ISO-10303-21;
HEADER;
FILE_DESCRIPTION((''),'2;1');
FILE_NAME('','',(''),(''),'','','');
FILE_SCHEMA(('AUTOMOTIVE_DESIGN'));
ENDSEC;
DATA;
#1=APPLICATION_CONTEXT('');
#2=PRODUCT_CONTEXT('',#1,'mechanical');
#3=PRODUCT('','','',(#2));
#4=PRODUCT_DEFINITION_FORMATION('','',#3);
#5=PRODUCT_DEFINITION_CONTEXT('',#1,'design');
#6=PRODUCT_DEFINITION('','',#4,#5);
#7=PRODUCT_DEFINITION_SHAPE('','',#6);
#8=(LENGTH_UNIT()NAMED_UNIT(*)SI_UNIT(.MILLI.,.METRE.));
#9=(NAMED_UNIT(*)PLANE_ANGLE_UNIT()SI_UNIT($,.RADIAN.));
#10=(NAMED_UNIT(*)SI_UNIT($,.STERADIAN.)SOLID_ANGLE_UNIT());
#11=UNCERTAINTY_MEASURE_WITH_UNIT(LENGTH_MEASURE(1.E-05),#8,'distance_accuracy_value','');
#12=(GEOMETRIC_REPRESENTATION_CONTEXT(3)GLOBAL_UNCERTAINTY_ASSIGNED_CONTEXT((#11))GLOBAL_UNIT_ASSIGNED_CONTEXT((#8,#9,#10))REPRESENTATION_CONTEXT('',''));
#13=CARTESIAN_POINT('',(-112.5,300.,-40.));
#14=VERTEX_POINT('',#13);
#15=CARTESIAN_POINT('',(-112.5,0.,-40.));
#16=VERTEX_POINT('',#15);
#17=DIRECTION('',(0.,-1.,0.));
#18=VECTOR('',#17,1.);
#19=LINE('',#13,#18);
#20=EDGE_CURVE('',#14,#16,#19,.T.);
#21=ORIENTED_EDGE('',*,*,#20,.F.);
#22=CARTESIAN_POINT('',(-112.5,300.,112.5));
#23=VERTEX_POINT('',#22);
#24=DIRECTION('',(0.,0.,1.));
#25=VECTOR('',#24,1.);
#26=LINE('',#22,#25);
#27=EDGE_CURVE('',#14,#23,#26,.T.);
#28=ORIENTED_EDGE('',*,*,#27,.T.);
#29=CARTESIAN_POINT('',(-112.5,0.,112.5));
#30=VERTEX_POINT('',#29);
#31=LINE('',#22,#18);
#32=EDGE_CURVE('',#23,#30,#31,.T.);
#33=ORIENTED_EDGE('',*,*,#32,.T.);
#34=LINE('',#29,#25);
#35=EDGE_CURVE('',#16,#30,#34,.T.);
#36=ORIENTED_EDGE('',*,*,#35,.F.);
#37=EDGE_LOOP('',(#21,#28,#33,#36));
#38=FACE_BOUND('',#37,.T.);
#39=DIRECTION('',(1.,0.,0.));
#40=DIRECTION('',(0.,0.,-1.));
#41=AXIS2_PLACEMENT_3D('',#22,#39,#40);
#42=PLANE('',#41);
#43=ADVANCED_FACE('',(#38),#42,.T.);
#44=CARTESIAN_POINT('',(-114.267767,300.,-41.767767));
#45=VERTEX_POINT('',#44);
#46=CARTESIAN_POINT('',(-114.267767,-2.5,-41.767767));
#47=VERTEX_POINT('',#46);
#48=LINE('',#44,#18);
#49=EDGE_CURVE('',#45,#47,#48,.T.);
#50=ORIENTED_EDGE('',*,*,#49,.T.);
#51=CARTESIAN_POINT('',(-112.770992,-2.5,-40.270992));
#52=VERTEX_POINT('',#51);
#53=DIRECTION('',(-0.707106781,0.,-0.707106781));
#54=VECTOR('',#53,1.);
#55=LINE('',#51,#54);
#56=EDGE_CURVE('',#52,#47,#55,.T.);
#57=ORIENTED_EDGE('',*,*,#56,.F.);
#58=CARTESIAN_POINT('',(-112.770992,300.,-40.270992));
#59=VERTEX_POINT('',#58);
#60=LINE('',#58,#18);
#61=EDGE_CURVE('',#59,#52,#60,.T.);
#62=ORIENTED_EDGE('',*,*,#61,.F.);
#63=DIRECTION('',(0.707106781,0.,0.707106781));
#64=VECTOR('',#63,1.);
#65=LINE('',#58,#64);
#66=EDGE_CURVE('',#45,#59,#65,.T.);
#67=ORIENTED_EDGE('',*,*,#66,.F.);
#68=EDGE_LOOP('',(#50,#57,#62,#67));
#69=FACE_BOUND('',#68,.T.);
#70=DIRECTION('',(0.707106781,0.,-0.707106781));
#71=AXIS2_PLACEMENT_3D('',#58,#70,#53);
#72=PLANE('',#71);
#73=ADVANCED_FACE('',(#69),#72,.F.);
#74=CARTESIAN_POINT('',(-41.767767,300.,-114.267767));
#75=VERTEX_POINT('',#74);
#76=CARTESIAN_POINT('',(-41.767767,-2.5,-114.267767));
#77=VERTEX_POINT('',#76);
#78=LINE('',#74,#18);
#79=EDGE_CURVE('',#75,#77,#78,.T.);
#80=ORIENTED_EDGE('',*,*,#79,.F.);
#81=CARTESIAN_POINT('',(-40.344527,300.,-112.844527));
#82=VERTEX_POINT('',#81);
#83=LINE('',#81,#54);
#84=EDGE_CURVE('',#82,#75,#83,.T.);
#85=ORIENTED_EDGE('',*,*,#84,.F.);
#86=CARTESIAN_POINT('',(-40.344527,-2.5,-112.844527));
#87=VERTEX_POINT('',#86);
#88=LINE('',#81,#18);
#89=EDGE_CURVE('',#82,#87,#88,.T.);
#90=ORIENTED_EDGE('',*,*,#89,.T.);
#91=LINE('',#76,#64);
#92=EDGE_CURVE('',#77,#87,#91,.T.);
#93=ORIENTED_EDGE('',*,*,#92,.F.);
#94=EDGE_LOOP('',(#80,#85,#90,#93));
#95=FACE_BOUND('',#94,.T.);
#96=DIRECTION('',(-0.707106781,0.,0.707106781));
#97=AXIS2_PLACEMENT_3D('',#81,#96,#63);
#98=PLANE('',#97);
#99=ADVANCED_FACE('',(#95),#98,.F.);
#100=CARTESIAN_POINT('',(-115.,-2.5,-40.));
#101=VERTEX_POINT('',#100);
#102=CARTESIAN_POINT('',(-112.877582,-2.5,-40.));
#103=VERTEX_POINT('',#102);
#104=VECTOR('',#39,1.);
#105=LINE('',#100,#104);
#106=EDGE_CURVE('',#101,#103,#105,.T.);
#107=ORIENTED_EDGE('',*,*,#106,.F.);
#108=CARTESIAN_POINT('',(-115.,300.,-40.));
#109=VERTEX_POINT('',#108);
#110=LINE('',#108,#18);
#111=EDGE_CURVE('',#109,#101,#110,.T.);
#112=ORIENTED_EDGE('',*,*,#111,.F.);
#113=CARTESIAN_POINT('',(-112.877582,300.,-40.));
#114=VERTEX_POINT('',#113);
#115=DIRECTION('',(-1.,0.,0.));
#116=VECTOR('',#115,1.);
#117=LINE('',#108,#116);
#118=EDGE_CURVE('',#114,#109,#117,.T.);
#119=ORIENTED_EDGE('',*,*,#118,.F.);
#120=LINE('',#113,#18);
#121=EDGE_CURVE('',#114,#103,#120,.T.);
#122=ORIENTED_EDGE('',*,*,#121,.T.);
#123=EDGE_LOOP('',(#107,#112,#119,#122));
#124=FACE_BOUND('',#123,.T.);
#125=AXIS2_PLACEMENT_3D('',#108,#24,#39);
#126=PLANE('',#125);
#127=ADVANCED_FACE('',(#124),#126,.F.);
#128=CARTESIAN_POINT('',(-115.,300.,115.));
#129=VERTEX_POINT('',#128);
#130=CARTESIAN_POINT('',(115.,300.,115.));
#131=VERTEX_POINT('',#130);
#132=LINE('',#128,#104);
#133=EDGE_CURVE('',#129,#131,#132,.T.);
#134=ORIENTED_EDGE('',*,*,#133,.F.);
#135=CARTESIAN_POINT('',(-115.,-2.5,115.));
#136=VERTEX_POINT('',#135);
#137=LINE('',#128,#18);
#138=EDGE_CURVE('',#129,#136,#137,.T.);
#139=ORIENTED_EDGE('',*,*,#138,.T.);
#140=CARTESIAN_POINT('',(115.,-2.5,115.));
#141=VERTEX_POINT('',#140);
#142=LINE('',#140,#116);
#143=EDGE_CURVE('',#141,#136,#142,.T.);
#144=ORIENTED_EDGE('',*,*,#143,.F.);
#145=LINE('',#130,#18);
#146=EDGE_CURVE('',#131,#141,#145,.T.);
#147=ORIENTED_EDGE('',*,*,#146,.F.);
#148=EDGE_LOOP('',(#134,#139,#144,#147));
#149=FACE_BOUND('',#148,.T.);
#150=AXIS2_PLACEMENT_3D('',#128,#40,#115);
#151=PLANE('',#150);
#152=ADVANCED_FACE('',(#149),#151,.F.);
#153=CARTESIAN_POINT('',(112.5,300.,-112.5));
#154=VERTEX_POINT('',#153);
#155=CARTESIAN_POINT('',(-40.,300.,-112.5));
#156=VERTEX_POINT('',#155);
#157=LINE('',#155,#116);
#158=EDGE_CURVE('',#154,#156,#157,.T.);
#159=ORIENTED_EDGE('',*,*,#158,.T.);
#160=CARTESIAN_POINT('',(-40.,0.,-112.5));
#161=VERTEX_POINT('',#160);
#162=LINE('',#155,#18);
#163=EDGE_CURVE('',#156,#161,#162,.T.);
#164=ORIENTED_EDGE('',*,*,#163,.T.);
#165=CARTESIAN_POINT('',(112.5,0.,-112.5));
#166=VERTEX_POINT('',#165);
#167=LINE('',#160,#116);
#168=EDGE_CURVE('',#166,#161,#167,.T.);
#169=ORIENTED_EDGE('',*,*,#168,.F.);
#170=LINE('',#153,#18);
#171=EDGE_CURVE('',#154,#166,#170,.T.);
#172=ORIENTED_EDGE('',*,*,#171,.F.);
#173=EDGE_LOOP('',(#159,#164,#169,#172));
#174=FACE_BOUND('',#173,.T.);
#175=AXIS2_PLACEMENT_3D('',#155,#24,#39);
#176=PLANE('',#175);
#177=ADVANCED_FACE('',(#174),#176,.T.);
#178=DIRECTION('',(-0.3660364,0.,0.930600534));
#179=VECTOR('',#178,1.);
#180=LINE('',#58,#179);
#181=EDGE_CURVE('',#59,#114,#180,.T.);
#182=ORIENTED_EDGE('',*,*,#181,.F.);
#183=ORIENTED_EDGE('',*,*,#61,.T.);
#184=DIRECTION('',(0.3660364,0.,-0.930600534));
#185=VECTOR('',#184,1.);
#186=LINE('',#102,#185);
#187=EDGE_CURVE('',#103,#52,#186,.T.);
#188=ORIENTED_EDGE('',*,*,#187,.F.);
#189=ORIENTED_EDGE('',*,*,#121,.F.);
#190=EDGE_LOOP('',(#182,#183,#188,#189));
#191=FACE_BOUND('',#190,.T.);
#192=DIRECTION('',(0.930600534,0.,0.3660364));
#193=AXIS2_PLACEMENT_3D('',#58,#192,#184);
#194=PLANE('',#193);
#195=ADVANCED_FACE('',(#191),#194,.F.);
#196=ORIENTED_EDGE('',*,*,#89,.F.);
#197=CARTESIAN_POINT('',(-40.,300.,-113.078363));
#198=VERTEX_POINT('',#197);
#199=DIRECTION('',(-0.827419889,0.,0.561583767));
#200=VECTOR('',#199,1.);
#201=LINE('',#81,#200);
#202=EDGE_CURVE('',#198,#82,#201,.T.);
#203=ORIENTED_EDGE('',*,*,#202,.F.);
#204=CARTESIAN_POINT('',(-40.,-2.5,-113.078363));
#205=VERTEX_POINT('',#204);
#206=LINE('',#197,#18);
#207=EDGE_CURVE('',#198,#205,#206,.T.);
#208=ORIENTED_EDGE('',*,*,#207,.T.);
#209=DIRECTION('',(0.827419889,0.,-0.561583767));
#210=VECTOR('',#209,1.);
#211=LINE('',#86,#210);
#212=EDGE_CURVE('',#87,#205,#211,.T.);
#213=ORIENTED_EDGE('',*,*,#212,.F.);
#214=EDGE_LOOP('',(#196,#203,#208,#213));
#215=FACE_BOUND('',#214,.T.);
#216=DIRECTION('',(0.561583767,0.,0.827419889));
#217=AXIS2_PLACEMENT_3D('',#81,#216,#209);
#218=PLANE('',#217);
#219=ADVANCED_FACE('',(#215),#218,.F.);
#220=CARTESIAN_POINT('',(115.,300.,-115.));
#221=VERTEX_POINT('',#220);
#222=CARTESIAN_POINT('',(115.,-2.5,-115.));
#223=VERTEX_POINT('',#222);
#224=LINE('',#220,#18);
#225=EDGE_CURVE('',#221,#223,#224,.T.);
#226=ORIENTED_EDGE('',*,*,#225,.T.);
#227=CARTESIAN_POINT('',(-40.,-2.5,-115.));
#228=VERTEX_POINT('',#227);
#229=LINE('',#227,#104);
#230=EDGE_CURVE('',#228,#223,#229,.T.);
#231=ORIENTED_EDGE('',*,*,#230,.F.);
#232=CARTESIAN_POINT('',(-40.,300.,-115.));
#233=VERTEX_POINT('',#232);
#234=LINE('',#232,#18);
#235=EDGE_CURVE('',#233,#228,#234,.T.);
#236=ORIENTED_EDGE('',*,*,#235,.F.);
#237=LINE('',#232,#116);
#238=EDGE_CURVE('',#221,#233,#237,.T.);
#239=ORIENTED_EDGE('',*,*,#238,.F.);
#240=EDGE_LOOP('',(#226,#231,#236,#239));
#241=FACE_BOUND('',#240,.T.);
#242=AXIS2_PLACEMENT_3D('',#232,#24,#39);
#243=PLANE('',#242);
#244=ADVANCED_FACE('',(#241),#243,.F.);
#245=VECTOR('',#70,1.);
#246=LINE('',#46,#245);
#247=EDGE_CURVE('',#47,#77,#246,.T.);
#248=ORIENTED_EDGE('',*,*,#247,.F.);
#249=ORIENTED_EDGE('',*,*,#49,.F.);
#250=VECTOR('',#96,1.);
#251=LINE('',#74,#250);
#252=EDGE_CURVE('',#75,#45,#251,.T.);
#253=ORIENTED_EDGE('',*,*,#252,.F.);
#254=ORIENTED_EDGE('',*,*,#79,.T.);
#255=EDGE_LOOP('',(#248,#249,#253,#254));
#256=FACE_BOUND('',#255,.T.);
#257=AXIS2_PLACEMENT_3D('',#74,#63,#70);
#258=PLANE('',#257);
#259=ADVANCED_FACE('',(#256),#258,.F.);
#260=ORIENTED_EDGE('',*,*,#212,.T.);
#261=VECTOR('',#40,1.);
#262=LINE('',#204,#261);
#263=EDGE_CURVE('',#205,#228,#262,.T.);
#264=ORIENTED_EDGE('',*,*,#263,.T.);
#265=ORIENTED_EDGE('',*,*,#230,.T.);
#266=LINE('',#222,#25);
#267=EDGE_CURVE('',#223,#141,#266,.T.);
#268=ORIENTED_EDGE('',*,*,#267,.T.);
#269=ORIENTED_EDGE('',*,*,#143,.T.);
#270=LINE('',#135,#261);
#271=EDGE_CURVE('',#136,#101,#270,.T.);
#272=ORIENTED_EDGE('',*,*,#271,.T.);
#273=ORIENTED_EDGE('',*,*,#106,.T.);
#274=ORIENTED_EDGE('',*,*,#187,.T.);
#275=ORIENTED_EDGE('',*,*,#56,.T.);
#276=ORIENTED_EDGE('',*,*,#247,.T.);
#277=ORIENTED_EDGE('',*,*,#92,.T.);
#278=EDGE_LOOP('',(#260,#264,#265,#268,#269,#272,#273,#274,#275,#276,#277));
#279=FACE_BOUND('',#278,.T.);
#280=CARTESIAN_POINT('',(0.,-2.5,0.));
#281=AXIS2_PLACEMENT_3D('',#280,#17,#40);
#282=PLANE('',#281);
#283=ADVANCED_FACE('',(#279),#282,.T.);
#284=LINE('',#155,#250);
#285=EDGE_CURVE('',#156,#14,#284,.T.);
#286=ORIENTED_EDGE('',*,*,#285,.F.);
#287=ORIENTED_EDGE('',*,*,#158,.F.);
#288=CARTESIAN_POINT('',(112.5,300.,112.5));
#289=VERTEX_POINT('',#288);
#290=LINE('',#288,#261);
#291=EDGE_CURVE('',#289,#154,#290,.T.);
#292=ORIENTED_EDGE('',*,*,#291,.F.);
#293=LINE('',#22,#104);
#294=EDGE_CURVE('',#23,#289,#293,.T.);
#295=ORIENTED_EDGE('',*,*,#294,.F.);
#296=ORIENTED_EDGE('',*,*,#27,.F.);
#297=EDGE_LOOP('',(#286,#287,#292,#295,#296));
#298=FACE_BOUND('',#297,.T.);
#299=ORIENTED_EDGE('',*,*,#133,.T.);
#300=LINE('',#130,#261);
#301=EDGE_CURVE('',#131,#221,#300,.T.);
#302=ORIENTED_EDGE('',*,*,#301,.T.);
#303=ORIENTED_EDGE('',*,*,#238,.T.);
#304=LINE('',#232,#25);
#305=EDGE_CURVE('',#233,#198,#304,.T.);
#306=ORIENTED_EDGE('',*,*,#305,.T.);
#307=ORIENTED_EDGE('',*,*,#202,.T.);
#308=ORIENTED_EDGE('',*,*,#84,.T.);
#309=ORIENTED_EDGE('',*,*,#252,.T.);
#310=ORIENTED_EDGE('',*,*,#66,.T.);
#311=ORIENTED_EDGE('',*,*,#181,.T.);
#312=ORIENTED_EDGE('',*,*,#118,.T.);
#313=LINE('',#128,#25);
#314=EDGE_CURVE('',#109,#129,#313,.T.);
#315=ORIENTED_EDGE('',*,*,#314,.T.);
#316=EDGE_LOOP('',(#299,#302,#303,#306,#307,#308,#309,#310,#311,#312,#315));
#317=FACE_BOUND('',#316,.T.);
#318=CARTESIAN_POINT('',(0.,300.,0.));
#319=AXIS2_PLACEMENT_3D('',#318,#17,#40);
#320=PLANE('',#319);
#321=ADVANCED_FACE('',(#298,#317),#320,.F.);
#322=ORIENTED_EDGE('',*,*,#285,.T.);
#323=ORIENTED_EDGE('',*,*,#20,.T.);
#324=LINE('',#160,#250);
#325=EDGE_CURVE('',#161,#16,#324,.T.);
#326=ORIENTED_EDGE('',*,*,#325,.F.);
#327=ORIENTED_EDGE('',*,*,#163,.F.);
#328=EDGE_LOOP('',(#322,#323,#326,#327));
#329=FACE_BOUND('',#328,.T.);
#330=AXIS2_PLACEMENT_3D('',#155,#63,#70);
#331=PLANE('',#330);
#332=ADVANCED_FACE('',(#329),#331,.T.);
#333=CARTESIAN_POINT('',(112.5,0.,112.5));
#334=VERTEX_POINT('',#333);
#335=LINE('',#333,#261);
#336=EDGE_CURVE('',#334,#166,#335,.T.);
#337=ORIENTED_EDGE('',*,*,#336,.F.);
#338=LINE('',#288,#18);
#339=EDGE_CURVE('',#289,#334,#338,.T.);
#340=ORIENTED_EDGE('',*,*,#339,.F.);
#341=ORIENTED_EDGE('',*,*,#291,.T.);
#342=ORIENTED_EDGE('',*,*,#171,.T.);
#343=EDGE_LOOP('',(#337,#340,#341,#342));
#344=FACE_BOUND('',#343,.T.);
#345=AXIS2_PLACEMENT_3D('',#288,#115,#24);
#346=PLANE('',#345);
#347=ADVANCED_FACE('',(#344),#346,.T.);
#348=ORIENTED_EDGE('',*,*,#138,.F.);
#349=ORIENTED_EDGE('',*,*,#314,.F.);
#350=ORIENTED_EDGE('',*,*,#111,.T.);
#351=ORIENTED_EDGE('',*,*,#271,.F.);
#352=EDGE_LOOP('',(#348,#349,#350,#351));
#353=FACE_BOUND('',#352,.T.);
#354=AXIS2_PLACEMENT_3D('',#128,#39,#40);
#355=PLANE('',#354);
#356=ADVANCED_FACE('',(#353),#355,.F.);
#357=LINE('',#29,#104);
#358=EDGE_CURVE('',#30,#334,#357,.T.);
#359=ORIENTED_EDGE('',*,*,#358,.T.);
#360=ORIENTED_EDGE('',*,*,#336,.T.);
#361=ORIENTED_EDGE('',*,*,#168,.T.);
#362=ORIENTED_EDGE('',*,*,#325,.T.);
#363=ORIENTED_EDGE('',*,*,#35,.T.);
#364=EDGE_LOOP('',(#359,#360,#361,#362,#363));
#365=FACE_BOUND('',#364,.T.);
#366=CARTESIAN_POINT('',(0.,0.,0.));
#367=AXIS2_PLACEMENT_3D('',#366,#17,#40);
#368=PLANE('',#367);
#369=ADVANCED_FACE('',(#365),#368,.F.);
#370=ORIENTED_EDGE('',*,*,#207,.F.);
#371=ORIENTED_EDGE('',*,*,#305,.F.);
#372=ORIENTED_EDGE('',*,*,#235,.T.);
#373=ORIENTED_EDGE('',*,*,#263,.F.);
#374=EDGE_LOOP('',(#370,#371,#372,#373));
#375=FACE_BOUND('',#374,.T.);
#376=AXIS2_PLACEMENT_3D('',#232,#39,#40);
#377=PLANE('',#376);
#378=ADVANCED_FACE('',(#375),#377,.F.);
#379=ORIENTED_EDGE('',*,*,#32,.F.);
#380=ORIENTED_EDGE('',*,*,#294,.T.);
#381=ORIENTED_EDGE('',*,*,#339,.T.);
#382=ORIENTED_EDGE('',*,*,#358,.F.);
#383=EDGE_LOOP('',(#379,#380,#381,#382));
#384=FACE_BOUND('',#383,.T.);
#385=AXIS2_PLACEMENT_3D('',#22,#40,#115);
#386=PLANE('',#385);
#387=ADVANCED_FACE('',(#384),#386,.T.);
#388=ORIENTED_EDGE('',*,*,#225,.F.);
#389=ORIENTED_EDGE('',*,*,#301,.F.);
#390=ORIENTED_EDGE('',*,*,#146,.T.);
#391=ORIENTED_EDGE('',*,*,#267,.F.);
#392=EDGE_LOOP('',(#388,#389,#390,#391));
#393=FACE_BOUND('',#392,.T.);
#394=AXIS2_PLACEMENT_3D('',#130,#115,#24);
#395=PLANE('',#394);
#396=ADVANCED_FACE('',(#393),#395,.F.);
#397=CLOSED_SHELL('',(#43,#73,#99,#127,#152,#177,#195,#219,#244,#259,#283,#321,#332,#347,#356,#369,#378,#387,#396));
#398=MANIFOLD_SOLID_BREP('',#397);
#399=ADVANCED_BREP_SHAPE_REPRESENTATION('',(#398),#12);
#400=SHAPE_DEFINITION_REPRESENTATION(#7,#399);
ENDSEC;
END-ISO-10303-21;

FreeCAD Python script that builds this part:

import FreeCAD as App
import Part
import Sketcher
from FreeCAD import Vector
Q = App.Units.Quantity


def add_polygon(sketch, points):
    """Adds a closed chain of lines whose ends are joined by coincident constraints."""
    first, n = sketch.GeometryCount, len(points)
    for a, b in zip(points, points[1:] + points[:1]):
        sketch.addGeometry(Part.LineSegment(App.Vector(*a, 0), App.Vector(*b, 0)), False)
    for i in range(n):
        sketch.addConstraint(Sketcher.Constraint("Coincident", first + i, 2, first + (i + 1) % n, 1))

doc = App.newDocument("Part")
body = doc.addObject("PartDesign::Body", "Body")

sketch1 = body.newObject("Sketcher::SketchObject", "Sketch")
sketch1.AttachmentSupport = (doc.getObject("XZ_Plane"), [""])
sketch1.MapMode = "FlatFace"
add_polygon(sketch1, [(-41.77, -114.27), (-114.27, -41.77), (-112.77, -40.27), (-112.88, -40), (-115, -40), (-115, 115), (115, 115), (115, -115), (-40, -115), (-40, -113.08), (-40.34, -112.84)])
add_polygon(sketch1, [(112.5, 112.5), (-112.5, 112.5), (-112.5, -40), (-40, -112.5), (112.5, -112.5)])
sketch1.addConstraint(Sketcher.Constraint("Horizontal", 3))
sketch1.addConstraint(Sketcher.Constraint("Vertical", 4))
sketch1.addConstraint(Sketcher.Constraint("Horizontal", 5))
sketch1.addConstraint(Sketcher.Constraint("Vertical", 6))
sketch1.addConstraint(Sketcher.Constraint("Horizontal", 7))
sketch1.addConstraint(Sketcher.Constraint("Vertical", 8))
sketch1.addConstraint(Sketcher.Constraint("Horizontal", 11))
sketch1.addConstraint(Sketcher.Constraint("Vertical", 12))
sketch1.addConstraint(Sketcher.Constraint("Horizontal", 14))
sketch1.addConstraint(Sketcher.Constraint("Vertical", 15))
sketch1.addConstraint(Sketcher.Constraint("Symmetric", 4, 2, 6, 2, -1, 1))
sketch1.addConstraint(Sketcher.Constraint("Symmetric", 11, 2, 14, 2, -1, 1))
sketch1.addConstraint(Sketcher.Constraint("Perpendicular", 0, 1))
sketch1.addConstraint(Sketcher.Constraint("Parallel", 1, 10))
sketch1.addConstraint(Sketcher.Constraint("Perpendicular", 10, 13))
sketch1.addConstraint(Sketcher.Constraint("Horizontal", 3, 2, 12, 2))
sketch1.addConstraint(Sketcher.Constraint("Vertical", 8, 2, 13, 2))
sketch1.addConstraint(Sketcher.Constraint("Equal", 7, 4))
sketch1.addConstraint(Sketcher.Constraint("Equal", 5, 6))
sketch1.addConstraint(Sketcher.Constraint("Equal", 14, 12))
sketch1.addConstraint(Sketcher.Constraint("Equal", 0, 13))
sketch1.addConstraint(Sketcher.Constraint("DistanceX", 5, 1, 5, 2, Q("230 mm")))
sketch1.addConstraint(Sketcher.Constraint("DistanceX", 7, 2, 7, 1, Q("155 mm")))
sketch1.addConstraint(Sketcher.Constraint("DistanceX", 11, 2, 11, 1, Q("225 mm")))
sketch1.addConstraint(Sketcher.Constraint("Distance", 2, Q("0.291201 mm")))
sketch1.addConstraint(Sketcher.Constraint("DistanceX", 3, 2, 3, 1, Q("2.122418 mm")))
sketch1.addConstraint(Sketcher.Constraint("Distance", 1, Q("2.11676 mm")))
sketch1.addConstraint(Sketcher.Constraint("DistanceY", 8, 1, 8, 2, Q("1.921637 mm")))
sketch1.addConstraint(Sketcher.Constraint("DistanceX", 1, 2, -1, 1, Q("112.770992 mm")))
sketch1.addConstraint(Sketcher.Constraint("DistanceX", 0, 2, 9, 2, Q("73.92324 mm")))
pad1 = body.newObject("PartDesign::Pad", "Pad")
pad1.Profile = sketch1
pad1.Length = 300
pad1.Reversed = True

sketch2 = body.newObject("Sketcher::SketchObject", "Sketch001")
sketch2.AttachmentSupport = (doc.getObject("XZ_Plane"), [""])
sketch2.MapMode = "FlatFace"
add_polygon(sketch2, [(115, -115), (115, 115), (-115, 115), (-115, -40), (-112.88, -40), (-112.77, -40.27), (-114.27, -41.77), (-41.77, -114.27), (-40.34, -112.84), (-40, -113.08), (-40, -115)])
sketch2.addConstraint(Sketcher.Constraint("Vertical", 0))
sketch2.addConstraint(Sketcher.Constraint("Horizontal", 1))
sketch2.addConstraint(Sketcher.Constraint("Vertical", 2))
sketch2.addConstraint(Sketcher.Constraint("Horizontal", 3))
sketch2.addConstraint(Sketcher.Constraint("Vertical", 9))
sketch2.addConstraint(Sketcher.Constraint("Horizontal", 10))
sketch2.addConstraint(Sketcher.Constraint("Symmetric", 1, 2, 10, 2, -1, 1))
sketch2.addConstraint(Sketcher.Constraint("Perpendicular", 5, 6))
sketch2.addConstraint(Sketcher.Constraint("Perpendicular", 6, 7))
sketch2.addConstraint(Sketcher.Constraint("Equal", 1, 0))
sketch2.addConstraint(Sketcher.Constraint("Equal", 10, 2))
sketch2.addConstraint(Sketcher.Constraint("DistanceX", 1, 2, 1, 1, Q("230 mm")))
sketch2.addConstraint(Sketcher.Constraint("DistanceX", 10, 1, 10, 2, Q("155 mm")))
sketch2.addConstraint(Sketcher.Constraint("Angle", 5, Q("-135 deg")))
sketch2.addConstraint(Sketcher.Constraint("DistanceX", 5, 2, 6, 2, Q("72.5 mm")))
sketch2.addConstraint(Sketcher.Constraint("Distance", 4, Q("0.291201 mm")))
sketch2.addConstraint(Sketcher.Constraint("DistanceX", 3, 1, 3, 2, Q("2.122418 mm")))
sketch2.addConstraint(Sketcher.Constraint("Distance", 5, Q("2.11676 mm")))
sketch2.addConstraint(Sketcher.Constraint("DistanceY", 9, 2, 9, 1, Q("1.921637 mm")))
sketch2.addConstraint(Sketcher.Constraint("DistanceX", 4, 2, -1, 1, Q("112.770992 mm")))
sketch2.addConstraint(Sketcher.Constraint("DistanceX", 6, 2, 7, 2, Q("1.42324 mm")))
pad2 = body.newObject("PartDesign::Pad", "Pad001")
pad2.Profile = sketch2
pad2.Length = 2.5

doc.recompute()
